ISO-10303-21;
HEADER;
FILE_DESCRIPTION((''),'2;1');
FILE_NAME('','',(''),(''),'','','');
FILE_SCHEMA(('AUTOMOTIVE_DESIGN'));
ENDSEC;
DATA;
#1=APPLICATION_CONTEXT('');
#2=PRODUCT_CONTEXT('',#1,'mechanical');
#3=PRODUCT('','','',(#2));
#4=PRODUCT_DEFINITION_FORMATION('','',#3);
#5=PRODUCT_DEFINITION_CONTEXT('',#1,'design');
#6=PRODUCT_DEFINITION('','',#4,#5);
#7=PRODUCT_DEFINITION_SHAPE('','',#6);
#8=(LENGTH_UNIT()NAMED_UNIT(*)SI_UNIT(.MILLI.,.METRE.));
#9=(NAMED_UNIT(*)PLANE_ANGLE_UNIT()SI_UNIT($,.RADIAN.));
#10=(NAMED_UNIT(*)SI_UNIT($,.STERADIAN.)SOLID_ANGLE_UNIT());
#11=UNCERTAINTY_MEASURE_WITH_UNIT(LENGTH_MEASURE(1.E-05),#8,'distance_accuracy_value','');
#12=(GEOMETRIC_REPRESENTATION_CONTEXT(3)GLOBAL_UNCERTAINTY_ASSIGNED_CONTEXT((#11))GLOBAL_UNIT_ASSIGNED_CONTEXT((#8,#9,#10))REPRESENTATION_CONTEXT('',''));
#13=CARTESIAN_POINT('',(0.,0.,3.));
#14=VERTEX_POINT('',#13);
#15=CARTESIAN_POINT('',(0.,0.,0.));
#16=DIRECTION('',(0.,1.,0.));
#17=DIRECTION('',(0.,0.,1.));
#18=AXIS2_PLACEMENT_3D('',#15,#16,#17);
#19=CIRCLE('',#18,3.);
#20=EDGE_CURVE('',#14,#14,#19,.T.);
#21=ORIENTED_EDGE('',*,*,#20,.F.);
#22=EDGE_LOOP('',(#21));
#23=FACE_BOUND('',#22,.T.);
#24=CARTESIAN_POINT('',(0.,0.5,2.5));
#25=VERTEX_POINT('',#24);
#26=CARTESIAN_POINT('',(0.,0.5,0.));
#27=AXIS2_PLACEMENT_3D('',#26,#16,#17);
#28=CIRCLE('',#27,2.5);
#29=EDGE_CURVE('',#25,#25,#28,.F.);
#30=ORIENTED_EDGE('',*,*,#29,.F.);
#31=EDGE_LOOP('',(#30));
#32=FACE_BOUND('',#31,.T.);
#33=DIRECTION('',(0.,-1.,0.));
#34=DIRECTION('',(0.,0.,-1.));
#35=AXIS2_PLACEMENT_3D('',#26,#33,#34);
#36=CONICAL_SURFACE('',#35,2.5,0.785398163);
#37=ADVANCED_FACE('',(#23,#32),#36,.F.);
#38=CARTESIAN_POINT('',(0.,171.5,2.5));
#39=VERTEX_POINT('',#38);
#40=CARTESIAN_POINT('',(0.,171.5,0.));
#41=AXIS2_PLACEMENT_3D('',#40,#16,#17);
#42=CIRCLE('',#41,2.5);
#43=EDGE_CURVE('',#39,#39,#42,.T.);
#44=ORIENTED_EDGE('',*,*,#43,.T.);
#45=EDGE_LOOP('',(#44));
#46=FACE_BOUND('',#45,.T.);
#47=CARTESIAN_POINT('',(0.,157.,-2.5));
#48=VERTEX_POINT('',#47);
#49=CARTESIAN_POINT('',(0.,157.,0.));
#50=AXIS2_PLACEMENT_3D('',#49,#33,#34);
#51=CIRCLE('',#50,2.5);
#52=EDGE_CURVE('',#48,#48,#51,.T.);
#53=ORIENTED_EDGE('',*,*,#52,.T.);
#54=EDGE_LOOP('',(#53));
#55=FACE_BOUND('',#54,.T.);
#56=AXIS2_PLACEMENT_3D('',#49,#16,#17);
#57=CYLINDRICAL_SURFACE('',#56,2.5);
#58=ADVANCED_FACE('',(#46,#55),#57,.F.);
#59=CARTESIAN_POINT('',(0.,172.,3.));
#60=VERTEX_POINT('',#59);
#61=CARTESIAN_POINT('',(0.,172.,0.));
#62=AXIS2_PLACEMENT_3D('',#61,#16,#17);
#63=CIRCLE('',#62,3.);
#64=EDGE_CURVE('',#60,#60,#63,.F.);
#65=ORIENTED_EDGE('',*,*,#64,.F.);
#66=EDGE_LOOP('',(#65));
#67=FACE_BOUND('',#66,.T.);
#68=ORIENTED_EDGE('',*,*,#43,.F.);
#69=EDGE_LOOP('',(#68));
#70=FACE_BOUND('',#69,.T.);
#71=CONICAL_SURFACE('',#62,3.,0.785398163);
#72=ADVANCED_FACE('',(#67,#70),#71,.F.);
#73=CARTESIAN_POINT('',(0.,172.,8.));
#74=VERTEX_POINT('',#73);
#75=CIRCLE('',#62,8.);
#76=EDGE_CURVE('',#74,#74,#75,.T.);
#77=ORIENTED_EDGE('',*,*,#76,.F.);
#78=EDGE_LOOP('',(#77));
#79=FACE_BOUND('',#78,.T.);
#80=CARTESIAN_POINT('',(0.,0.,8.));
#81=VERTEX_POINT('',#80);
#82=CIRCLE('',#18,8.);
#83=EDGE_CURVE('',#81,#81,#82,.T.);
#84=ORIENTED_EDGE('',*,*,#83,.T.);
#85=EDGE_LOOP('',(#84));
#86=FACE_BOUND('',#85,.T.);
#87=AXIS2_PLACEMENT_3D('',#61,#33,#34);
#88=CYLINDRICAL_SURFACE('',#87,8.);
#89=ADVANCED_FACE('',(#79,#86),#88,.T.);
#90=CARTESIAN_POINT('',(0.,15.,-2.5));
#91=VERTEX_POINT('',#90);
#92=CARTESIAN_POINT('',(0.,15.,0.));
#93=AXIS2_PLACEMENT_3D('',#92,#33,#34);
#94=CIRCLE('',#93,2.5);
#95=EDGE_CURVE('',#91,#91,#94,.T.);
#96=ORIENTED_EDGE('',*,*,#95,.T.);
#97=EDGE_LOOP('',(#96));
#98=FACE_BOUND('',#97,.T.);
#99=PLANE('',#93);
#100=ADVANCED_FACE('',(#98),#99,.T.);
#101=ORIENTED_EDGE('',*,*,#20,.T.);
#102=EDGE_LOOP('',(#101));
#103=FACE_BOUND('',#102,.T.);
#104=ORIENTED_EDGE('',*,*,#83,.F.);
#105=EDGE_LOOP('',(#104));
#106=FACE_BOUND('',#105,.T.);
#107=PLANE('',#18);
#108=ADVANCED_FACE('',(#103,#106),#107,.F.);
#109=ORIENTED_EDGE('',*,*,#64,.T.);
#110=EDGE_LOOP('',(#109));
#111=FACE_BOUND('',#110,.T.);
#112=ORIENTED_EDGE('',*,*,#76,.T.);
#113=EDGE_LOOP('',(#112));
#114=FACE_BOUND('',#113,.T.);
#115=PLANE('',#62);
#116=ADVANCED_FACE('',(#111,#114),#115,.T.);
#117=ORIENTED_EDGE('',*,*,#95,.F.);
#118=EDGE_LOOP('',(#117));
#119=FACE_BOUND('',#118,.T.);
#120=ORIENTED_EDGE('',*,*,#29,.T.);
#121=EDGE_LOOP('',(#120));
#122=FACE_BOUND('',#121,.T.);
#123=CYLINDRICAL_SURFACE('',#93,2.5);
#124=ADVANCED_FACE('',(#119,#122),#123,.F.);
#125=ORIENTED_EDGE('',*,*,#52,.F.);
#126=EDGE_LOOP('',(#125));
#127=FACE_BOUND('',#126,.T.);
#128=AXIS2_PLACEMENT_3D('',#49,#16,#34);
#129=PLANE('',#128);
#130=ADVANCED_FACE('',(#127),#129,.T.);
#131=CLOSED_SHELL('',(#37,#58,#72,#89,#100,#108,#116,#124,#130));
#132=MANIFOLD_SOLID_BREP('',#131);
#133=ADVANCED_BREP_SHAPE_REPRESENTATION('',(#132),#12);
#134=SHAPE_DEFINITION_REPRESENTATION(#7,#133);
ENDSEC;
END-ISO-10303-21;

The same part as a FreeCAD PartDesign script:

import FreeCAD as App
import Part
import Sketcher

V = App.Vector
Q = App.Units.Quantity


def edges_at(feature, points):
    """Names of the edges that pass closest to the given points."""
    edges = feature.Shape.Edges
    near = lambda p: min(range(len(edges)), key=lambda i: edges[i].distToShape(Part.Vertex(*p))[0])
    return sorted({f"Edge{near(p) + 1}" for p in points})

doc = App.newDocument("Part")
body = doc.addObject("PartDesign::Body", "Body")

sketch1 = body.newObject("Sketcher::SketchObject", "Sketch")
sketch1.AttachmentSupport = (doc.getObject("XZ_Plane"), [""])
sketch1.MapMode = "FlatFace"
sketch1.addGeometry(Part.Circle(V(0, 0, 0), V(0, 0, 1), 8), False)
sketch1.addConstraint([
    Sketcher.Constraint("Coincident", 0, 3, -1, 1),
    Sketcher.Constraint("Diameter", 0, Q("16 mm")),
])
pad1 = body.newObject("PartDesign::Pad", "Pad")
pad1.Profile = sketch1
pad1.Length = 172
pad1.Reversed = True

sketch2 = body.newObject("Sketcher::SketchObject", "Sketch001")
sketch2.AttachmentSupport = (doc.getObject("XZ_Plane"), [""])
sketch2.MapMode = "FlatFace"
sketch2.addGeometry(Part.Circle(V(0, 0, 0), V(0, 0, 1), 2.5), False)
sketch2.addConstraint([
    Sketcher.Constraint("Coincident", 0, 3, -1, 1),
    Sketcher.Constraint("Diameter", 0, Q("5 mm")),
])
pocket1 = body.newObject("PartDesign::Pocket", "Pocket")
pocket1.Profile = sketch2
pocket1.Length = 15
doc.recompute()

datumplane = body.newObject("PartDesign::Plane", "DatumPlane")
datumplane.AttachmentSupport = (doc.getObject("XZ_Plane"), [""])
datumplane.MapMode = "FlatFace"
datumplane.AttachmentOffset = App.Placement(V(0, 0, -86), App.Rotation())
mirrored = body.newObject("PartDesign::Mirrored", "Mirrored")
mirrored.Originals = [pocket1]
mirrored.MirrorPlane = (datumplane, [""])
body.Tip = mirrored
doc.recompute()

chamfer = body.newObject("PartDesign::Chamfer", "Chamfer")
chamfer.Base = (mirrored, edges_at(mirrored, [(-2.5, 0, 0), (-2.5, 172, 0)]))
chamfer.Size = 0.5

doc.recompute()
